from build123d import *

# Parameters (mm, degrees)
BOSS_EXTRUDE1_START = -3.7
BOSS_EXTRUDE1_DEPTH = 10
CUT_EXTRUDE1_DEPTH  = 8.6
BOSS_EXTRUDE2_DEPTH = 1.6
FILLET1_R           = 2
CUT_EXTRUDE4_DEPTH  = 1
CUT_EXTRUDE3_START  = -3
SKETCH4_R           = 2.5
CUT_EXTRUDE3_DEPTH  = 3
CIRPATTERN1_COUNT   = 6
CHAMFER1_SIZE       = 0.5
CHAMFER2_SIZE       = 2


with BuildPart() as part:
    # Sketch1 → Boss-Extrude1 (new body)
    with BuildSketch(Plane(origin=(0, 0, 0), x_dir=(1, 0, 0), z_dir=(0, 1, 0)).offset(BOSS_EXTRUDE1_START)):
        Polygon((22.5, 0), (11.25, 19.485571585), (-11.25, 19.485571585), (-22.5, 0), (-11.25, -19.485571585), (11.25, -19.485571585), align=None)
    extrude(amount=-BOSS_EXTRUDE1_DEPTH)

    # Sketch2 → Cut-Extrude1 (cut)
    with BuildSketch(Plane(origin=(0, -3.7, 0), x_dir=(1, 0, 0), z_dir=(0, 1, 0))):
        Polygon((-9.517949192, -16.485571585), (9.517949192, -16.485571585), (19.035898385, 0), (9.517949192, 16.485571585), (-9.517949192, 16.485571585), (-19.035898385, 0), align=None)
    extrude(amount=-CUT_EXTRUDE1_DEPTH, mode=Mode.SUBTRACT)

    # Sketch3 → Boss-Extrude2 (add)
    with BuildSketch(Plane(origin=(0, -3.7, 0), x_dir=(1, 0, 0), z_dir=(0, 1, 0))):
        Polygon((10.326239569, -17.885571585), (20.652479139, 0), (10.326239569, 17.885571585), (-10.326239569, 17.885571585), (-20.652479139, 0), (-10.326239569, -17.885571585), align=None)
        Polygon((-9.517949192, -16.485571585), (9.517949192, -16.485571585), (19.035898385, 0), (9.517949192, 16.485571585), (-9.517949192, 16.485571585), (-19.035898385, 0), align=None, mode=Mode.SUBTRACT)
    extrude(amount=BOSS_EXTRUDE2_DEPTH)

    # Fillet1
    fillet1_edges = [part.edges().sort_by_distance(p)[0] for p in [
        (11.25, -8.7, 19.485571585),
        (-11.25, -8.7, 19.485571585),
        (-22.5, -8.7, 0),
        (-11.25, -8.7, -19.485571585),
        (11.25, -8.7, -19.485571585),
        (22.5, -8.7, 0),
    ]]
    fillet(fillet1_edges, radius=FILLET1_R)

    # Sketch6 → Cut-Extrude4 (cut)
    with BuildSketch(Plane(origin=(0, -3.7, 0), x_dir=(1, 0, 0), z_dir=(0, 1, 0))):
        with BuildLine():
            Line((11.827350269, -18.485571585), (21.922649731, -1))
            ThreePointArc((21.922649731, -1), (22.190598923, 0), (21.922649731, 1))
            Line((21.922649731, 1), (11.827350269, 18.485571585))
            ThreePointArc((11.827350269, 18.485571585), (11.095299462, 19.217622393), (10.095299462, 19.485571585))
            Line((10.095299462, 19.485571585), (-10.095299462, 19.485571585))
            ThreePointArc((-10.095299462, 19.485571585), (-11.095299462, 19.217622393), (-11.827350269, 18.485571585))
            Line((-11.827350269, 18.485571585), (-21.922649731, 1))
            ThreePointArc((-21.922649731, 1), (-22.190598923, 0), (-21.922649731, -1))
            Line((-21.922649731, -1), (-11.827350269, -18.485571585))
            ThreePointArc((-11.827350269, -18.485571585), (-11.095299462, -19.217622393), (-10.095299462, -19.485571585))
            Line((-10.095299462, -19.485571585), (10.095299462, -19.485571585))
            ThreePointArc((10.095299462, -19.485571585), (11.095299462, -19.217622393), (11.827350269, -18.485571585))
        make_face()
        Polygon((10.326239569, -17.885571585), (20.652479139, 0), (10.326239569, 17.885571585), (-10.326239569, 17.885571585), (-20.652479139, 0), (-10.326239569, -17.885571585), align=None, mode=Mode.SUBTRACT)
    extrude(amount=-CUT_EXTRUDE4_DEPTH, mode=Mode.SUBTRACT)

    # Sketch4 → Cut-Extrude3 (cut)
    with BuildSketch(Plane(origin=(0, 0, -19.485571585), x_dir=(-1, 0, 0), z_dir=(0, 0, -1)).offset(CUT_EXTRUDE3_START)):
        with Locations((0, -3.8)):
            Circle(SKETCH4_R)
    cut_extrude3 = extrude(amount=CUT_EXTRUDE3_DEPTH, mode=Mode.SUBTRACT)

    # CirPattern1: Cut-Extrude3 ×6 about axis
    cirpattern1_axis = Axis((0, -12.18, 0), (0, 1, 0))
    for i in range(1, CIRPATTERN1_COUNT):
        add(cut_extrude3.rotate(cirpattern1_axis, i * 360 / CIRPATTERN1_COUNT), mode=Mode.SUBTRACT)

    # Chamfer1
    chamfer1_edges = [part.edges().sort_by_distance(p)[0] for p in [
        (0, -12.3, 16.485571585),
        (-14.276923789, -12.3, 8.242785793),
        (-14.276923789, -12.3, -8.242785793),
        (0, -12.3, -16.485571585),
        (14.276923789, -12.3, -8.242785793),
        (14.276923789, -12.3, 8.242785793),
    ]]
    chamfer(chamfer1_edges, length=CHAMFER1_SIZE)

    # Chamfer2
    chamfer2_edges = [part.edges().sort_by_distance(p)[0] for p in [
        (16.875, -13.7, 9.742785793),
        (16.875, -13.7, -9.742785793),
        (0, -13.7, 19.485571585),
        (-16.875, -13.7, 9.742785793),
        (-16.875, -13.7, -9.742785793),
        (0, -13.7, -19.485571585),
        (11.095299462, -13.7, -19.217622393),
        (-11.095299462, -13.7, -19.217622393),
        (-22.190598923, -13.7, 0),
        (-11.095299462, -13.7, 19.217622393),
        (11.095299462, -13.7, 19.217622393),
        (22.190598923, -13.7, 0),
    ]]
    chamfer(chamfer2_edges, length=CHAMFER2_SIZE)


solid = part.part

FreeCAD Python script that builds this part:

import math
import FreeCAD as App
import Part
import Sketcher
Q = App.Units.Quantity


def edges_at(feature, points):
    """Names of the edges that pass closest to the given points."""
    edges = feature.Shape.Edges
    near = lambda p: min(range(len(edges)), key=lambda i: edges[i].distToShape(Part.Vertex(*p))[0])
    return sorted({f"Edge{near(p) + 1}" for p in points})


def add_polygon(sketch, points):
    """Adds a closed chain of lines whose ends are joined by coincident constraints."""
    first, n = sketch.GeometryCount, len(points)
    for a, b in zip(points, points[1:] + points[:1]):
        sketch.addGeometry(Part.LineSegment(App.Vector(*a, 0), App.Vector(*b, 0)), False)
    for i in range(n):
        sketch.addConstraint(Sketcher.Constraint("Coincident", first + i, 2, first + (i + 1) % n, 1))

doc = App.newDocument("Part")
body = doc.addObject("PartDesign::Body", "Body")

# Sketch on XZ plane
sketch1 = doc.addObject("Sketcher::SketchObject", "Sketch")
body.addObject(sketch1)
sketch1.AttachmentSupport = (doc.XZ_Plane, [""])
sketch1.MapMode = "FlatFace"
sketch1.AttachmentOffset = App.Placement(App.Vector(0, 0, 3.7), App.Rotation())
add_polygon(sketch1, [(22.5, 0), (11.25, -19.485572), (-11.25, -19.485572), (-22.5, 0), (-11.25, 19.485572), (11.25, 19.485572)])  # lines 0-5
sketch1.addConstraint(Sketcher.Constraint("Horizontal", 1))
sketch1.addConstraint(Sketcher.Constraint("Horizontal", 4))
sketch1.addConstraint(Sketcher.Constraint("Symmetric", 0, 2, 3, 2, -1, 1))
sketch1.addConstraint(Sketcher.Constraint("Symmetric", 2, 2, 5, 2, -1, 1))
sketch1.addConstraint(Sketcher.Constraint("PointOnObject", 2, 2, -1))
sketch1.addConstraint(Sketcher.Constraint("Parallel", 2, 5))
sketch1.addConstraint(Sketcher.Constraint("Vertical", 1, 2, 3, 2))
sketch1.addConstraint(Sketcher.Constraint("Angle", 0, Q("-120 deg")))
sketch1.addConstraint(Sketcher.Constraint("DistanceX", 1, 2, 1, 1, 22.5))
sketch1.addConstraint(Sketcher.Constraint("DistanceX", 2, 2, 5, 2, 45.0))
pad1 = doc.addObject("PartDesign::Pad", "Pad")
body.addObject(pad1)
pad1.Profile = sketch1
pad1.Length = 10

# Sketch on XZ plane
sketch2 = doc.addObject("Sketcher::SketchObject", "Sketch001")
body.addObject(sketch2)
sketch2.AttachmentSupport = (doc.XZ_Plane, [""])
sketch2.MapMode = "FlatFace"
sketch2.AttachmentOffset = App.Placement(App.Vector(0, 0, 3.7), App.Rotation())
add_polygon(sketch2, [(-9.517949, 16.485572), (9.517949, 16.485572), (19.035898, 0), (9.517949, -16.485572), (-9.517949, -16.485572), (-19.035898, 0)])  # lines 0-5
sketch2.addConstraint(Sketcher.Constraint("Horizontal", 0))
sketch2.addConstraint(Sketcher.Constraint("Horizontal", 3))
sketch2.addConstraint(Sketcher.Constraint("Symmetric", 0, 2, 3, 2, -1, 1))
sketch2.addConstraint(Sketcher.Constraint("Symmetric", 1, 2, 4, 2, -1, 1))
sketch2.addConstraint(Sketcher.Constraint("PointOnObject", 1, 2, -1))
sketch2.addConstraint(Sketcher.Constraint("Parallel", 2, 5))
sketch2.addConstraint(Sketcher.Constraint("Vertical", 0, 2, 2, 2))
sketch2.addConstraint(Sketcher.Constraint("Angle", 1, Q("-60 deg")))
sketch2.addConstraint(Sketcher.Constraint("DistanceX", 0, 1, 0, 2, 19.035898))
sketch2.addConstraint(Sketcher.Constraint("Distance", 1, 19.035898))
pocket1 = doc.addObject("PartDesign::Pocket", "Pocket")
body.addObject(pocket1)
pocket1.Profile = sketch2
pocket1.Length = 8.6
pocket1.Reversed = True

# Sketch on XZ plane
sketch3 = doc.addObject("Sketcher::SketchObject", "Sketch002")
body.addObject(sketch3)
sketch3.AttachmentSupport = (doc.XZ_Plane, [""])
sketch3.MapMode = "FlatFace"
sketch3.AttachmentOffset = App.Placement(App.Vector(0, 0, 3.7), App.Rotation())
add_polygon(sketch3, [(10.32624, 17.885572), (20.652479, 0), (10.32624, -17.885572), (-10.32624, -17.885572), (-20.652479, 0), (-10.32624, 17.885572)])  # lines 0-5
add_polygon(sketch3, [(9.517949, 16.485572), (-9.517949, 16.485572), (-19.035898, 0), (-9.517949, -16.485572), (9.517949, -16.485572), (19.035898, 0)])  # lines 6-11
sketch3.addConstraint(Sketcher.Constraint("Horizontal", 2))
sketch3.addConstraint(Sketcher.Constraint("Horizontal", 5))
sketch3.addConstraint(Sketcher.Constraint("Horizontal", 6))
sketch3.addConstraint(Sketcher.Constraint("Horizontal", 9))
sketch3.addConstraint(Sketcher.Constraint("Symmetric", 0, 2, 3, 2, -1, 1))
sketch3.addConstraint(Sketcher.Constraint("Symmetric", 1, 2, 4, 2, -1, 1))
sketch3.addConstraint(Sketcher.Constraint("Symmetric", 6, 2, 9, 2, -1, 1))
sketch3.addConstraint(Sketcher.Constraint("Symmetric", 7, 2, 10, 2, -1, 1))
sketch3.addConstraint(Sketcher.Constraint("PointOnObject", 0, 2, -1))
sketch3.addConstraint(Sketcher.Constraint("PointOnObject", 7, 2, -1))
sketch3.addConstraint(Sketcher.Constraint("Parallel", 0, 3))
sketch3.addConstraint(Sketcher.Constraint("Parallel", 4, 7))
sketch3.addConstraint(Sketcher.Constraint("Parallel", 3, 8))
sketch3.addConstraint(Sketcher.Constraint("Parallel", 8, 11))
sketch3.addConstraint(Sketcher.Constraint("Vertical", 2, 2, 4, 2))
sketch3.addConstraint(Sketcher.Constraint("Angle", 0, Q("-60 deg")))
sketch3.addConstraint(Sketcher.Constraint("DistanceY", 6, 2, 4, 2, 1.4))
sketch3.addConstraint(Sketcher.Constraint("DistanceX", 6, 2, 6, 1, 19.035898))
sketch3.addConstraint(Sketcher.Constraint("Distance", 7, 19.035898))
sketch3.addConstraint(Sketcher.Constraint("DistanceX", 2, 2, 2, 1, 20.652479))
pad2 = doc.addObject("PartDesign::Pad", "Pad001")
body.addObject(pad2)
pad2.Profile = sketch3
pad2.Length = 1.6
pad2.Reversed = True
doc.recompute()

fillet = doc.addObject("PartDesign::Fillet", "Fillet")
body.addObject(fillet)
fillet.Base = (pad2, edges_at(pad2, [
    (11.25, -8.7, 19.486),
    (-11.25, -8.7, 19.486),
    (-22.5, -8.7, 0),
    (-11.25, -8.7, -19.486),
    (11.25, -8.7, -19.486),
    (22.5, -8.7, 0),
]))
fillet.Radius = 2

# Sketch on XZ plane
sketch4 = doc.addObject("Sketcher::SketchObject", "Sketch003")
body.addObject(sketch4)
sketch4.AttachmentSupport = (doc.XZ_Plane, [""])
sketch4.MapMode = "FlatFace"
sketch4.AttachmentOffset = App.Placement(App.Vector(0, 0, 3.7), App.Rotation())
sketch4.addGeometry(Part.LineSegment(App.Vector(11.82735, 18.485572, 0), App.Vector(21.92265, 1, 0)), False)  # 0
sketch4.addGeometry(Part.ArcOfCircle(Part.Circle(App.Vector(20.190599, 0, 0), App.Vector(0, 0, 1), 2), math.radians(-30), math.radians(30)), False)  # 1
sketch4.addGeometry(Part.LineSegment(App.Vector(21.92265, -1, 0), App.Vector(11.82735, -18.485572, 0)), False)  # 2
sketch4.addGeometry(Part.ArcOfCircle(Part.Circle(App.Vector(10.095299, -17.485572, 0), App.Vector(0, 0, 1), 2), math.radians(-90), math.radians(-30)), False)  # 3
sketch4.addGeometry(Part.LineSegment(App.Vector(10.095299, -19.485572, 0), App.Vector(-10.095299, -19.485572, 0)), False)  # 4
sketch4.addGeometry(Part.ArcOfCircle(Part.Circle(App.Vector(-10.095299, -17.485572, 0), App.Vector(0, 0, 1), 2), math.radians(-150), math.radians(-90)), False)  # 5
sketch4.addGeometry(Part.LineSegment(App.Vector(-11.82735, -18.485572, 0), App.Vector(-21.92265, -1, 0)), False)  # 6
sketch4.addGeometry(Part.ArcOfCircle(Part.Circle(App.Vector(-20.190599, 0, 0), App.Vector(0, 0, 1), 2), math.radians(150), math.radians(210)), False)  # 7
sketch4.addGeometry(Part.LineSegment(App.Vector(-21.92265, 1, 0), App.Vector(-11.82735, 18.485572, 0)), False)  # 8
sketch4.addGeometry(Part.ArcOfCircle(Part.Circle(App.Vector(-10.095299, 17.485572, 0), App.Vector(0, 0, 1), 2), math.radians(90), math.radians(150)), False)  # 9
sketch4.addGeometry(Part.LineSegment(App.Vector(-10.095299, 19.485572, 0), App.Vector(10.095299, 19.485572, 0)), False)  # 10
sketch4.addGeometry(Part.ArcOfCircle(Part.Circle(App.Vector(10.095299, 17.485572, 0), App.Vector(0, 0, 1), 2), math.radians(30), math.radians(90)), False)  # 11
add_polygon(sketch4, [(20.652479, 0), (10.32624, 17.885572), (-10.32624, 17.885572), (-20.652479, 0), (-10.32624, -17.885572), (10.32624, -17.885572)])  # lines 12-17
sketch4.addConstraint(Sketcher.Constraint("Tangent", 0, 2, 1, 2))
sketch4.addConstraint(Sketcher.Constraint("Tangent", 1, 1, 2, 1))
sketch4.addConstraint(Sketcher.Constraint("Tangent", 2, 2, 3, 2))
sketch4.addConstraint(Sketcher.Constraint("Tangent", 3, 1, 4, 1))
sketch4.addConstraint(Sketcher.Constraint("Tangent", 4, 2, 5, 2))
sketch4.addConstraint(Sketcher.Constraint("Tangent", 5, 1, 6, 1))
sketch4.addConstraint(Sketcher.Constraint("Tangent", 6, 2, 7, 2))
sketch4.addConstraint(Sketcher.Constraint("Tangent", 7, 1, 8, 1))
sketch4.addConstraint(Sketcher.Constraint("Tangent", 8, 2, 9, 2))
sketch4.addConstraint(Sketcher.Constraint("Tangent", 9, 1, 10, 1))
sketch4.addConstraint(Sketcher.Constraint("Tangent", 10, 2, 11, 2))
sketch4.addConstraint(Sketcher.Constraint("Tangent", 11, 1, 0, 1))
sketch4.addConstraint(Sketcher.Constraint("Horizontal", 4))
sketch4.addConstraint(Sketcher.Constraint("Horizontal", 10))
sketch4.addConstraint(Sketcher.Constraint("Horizontal", 13))
sketch4.addConstraint(Sketcher.Constraint("Horizontal", 16))
sketch4.addConstraint(Sketcher.Constraint("Equal", 1, 3))
sketch4.addConstraint(Sketcher.Constraint("Equal", 3, 5))
sketch4.addConstraint(Sketcher.Constraint("Equal", 5, 7))
sketch4.addConstraint(Sketcher.Constraint("Equal", 7, 9))
sketch4.addConstraint(Sketcher.Constraint("Equal", 9, 11))
sketch4.addConstraint(Sketcher.Constraint("Symmetric", 1, 3, 7, 3, -1, 1))
sketch4.addConstraint(Sketcher.Constraint("Symmetric", 3, 3, 9, 3, -1, 1))
sketch4.addConstraint(Sketcher.Constraint("Symmetric", 12, 2, 15, 2, -1, 1))
sketch4.addConstraint(Sketcher.Constraint("Symmetric", 14, 2, 17, 2, -1, 1))
sketch4.addConstraint(Sketcher.Constraint("Symmetric", 2, 2, 5, 1, -2))
sketch4.addConstraint(Sketcher.Constraint("PointOnObject", 14, 2, -1))
sketch4.addConstraint(Sketcher.Constraint("Parallel", 0, 6))
sketch4.addConstraint(Sketcher.Constraint("Parallel", 6, 12))
sketch4.addConstraint(Sketcher.Constraint("Parallel", 8, 14))
sketch4.addConstraint(Sketcher.Constraint("Parallel", 14, 17))
sketch4.addConstraint(Sketcher.Constraint("Radius", 1, 2.0))
sketch4.addConstraint(Sketcher.Constraint("Angle", 0, Q("-60 deg")))
sketch4.addConstraint(Sketcher.Constraint("DistanceY", 11, 3, 12, 2, 0.4))
sketch4.addConstraint(Sketcher.Constraint("DistanceX", 4, 2, 4, 1, 20.190599))
sketch4.addConstraint(Sketcher.Constraint("Distance", 0, 20.190599))
sketch4.addConstraint(Sketcher.Constraint("DistanceX", 13, 2, 13, 1, 20.652479))
pocket2 = doc.addObject("PartDesign::Pocket", "Pocket001")
body.addObject(pocket2)
pocket2.Profile = sketch4
pocket2.Length = 1
pocket2.Reversed = True

# Sketch on XY plane
sketch5 = doc.addObject("Sketcher::SketchObject", "Sketch004")
body.addObject(sketch5)
sketch5.AttachmentSupport = (doc.XY_Plane, [""])
sketch5.MapMode = "FlatFace"
sketch5.AttachmentOffset = App.Placement(App.Vector(0, 0, -16.485572), App.Rotation())
sketch5.addGeometry(Part.Circle(App.Vector(0, -3.8, 0), App.Vector(0, 0, 1), 2.5), False)
sketch5.addConstraint(Sketcher.Constraint("PointOnObject", 0, 3, -2))
sketch5.addConstraint(Sketcher.Constraint("Diameter", 0, 5.0))
sketch5.addConstraint(Sketcher.Constraint("DistanceY", 0, 3, -1, 1, 3.8))
pocket3 = doc.addObject("PartDesign::Pocket", "Pocket002")
body.addObject(pocket3)
pocket3.Profile = sketch5
pocket3.Length = 3
doc.recompute()

polarpattern = doc.addObject("PartDesign::PolarPattern", "PolarPattern")
body.addObject(polarpattern)
polarpattern.Originals = [pocket3]
polarpattern.Axis = (doc.Y_Axis, [""])
polarpattern.Angle = 360
polarpattern.Occurrences = 6
body.Tip = polarpattern
doc.recompute()

chamfer = doc.addObject("PartDesign::Chamfer", "Chamfer")
body.addObject(chamfer)
chamfer.Base = (polarpattern, edges_at(polarpattern, [
    (0, -12.3, 16.486),
    (-14.277, -12.3, 8.243),
    (-14.277, -12.3, -8.243),
    (0, -12.3, -16.486),
    (14.277, -12.3, -8.243),
    (14.277, -12.3, 8.243),
]))
chamfer.Size = 0.5
doc.recompute()

chamfer2 = doc.addObject("PartDesign::Chamfer", "Chamfer001")
body.addObject(chamfer2)
chamfer2.Base = (chamfer, edges_at(chamfer, [
    (16.875, -13.7, 9.743),
    (16.875, -13.7, -9.743),
    (0, -13.7, 19.486),
    (-16.875, -13.7, 9.743),
    (-16.875, -13.7, -9.743),
    (0, -13.7, -19.486),
    (11.095, -13.7, -19.218),
    (-11.095, -13.7, -19.218),
    (-22.191, -13.7, 0),
    (-11.095, -13.7, 19.218),
    (11.095, -13.7, 19.218),
    (22.191, -13.7, 0),
]))
chamfer2.Size = 2

doc.recompute()
